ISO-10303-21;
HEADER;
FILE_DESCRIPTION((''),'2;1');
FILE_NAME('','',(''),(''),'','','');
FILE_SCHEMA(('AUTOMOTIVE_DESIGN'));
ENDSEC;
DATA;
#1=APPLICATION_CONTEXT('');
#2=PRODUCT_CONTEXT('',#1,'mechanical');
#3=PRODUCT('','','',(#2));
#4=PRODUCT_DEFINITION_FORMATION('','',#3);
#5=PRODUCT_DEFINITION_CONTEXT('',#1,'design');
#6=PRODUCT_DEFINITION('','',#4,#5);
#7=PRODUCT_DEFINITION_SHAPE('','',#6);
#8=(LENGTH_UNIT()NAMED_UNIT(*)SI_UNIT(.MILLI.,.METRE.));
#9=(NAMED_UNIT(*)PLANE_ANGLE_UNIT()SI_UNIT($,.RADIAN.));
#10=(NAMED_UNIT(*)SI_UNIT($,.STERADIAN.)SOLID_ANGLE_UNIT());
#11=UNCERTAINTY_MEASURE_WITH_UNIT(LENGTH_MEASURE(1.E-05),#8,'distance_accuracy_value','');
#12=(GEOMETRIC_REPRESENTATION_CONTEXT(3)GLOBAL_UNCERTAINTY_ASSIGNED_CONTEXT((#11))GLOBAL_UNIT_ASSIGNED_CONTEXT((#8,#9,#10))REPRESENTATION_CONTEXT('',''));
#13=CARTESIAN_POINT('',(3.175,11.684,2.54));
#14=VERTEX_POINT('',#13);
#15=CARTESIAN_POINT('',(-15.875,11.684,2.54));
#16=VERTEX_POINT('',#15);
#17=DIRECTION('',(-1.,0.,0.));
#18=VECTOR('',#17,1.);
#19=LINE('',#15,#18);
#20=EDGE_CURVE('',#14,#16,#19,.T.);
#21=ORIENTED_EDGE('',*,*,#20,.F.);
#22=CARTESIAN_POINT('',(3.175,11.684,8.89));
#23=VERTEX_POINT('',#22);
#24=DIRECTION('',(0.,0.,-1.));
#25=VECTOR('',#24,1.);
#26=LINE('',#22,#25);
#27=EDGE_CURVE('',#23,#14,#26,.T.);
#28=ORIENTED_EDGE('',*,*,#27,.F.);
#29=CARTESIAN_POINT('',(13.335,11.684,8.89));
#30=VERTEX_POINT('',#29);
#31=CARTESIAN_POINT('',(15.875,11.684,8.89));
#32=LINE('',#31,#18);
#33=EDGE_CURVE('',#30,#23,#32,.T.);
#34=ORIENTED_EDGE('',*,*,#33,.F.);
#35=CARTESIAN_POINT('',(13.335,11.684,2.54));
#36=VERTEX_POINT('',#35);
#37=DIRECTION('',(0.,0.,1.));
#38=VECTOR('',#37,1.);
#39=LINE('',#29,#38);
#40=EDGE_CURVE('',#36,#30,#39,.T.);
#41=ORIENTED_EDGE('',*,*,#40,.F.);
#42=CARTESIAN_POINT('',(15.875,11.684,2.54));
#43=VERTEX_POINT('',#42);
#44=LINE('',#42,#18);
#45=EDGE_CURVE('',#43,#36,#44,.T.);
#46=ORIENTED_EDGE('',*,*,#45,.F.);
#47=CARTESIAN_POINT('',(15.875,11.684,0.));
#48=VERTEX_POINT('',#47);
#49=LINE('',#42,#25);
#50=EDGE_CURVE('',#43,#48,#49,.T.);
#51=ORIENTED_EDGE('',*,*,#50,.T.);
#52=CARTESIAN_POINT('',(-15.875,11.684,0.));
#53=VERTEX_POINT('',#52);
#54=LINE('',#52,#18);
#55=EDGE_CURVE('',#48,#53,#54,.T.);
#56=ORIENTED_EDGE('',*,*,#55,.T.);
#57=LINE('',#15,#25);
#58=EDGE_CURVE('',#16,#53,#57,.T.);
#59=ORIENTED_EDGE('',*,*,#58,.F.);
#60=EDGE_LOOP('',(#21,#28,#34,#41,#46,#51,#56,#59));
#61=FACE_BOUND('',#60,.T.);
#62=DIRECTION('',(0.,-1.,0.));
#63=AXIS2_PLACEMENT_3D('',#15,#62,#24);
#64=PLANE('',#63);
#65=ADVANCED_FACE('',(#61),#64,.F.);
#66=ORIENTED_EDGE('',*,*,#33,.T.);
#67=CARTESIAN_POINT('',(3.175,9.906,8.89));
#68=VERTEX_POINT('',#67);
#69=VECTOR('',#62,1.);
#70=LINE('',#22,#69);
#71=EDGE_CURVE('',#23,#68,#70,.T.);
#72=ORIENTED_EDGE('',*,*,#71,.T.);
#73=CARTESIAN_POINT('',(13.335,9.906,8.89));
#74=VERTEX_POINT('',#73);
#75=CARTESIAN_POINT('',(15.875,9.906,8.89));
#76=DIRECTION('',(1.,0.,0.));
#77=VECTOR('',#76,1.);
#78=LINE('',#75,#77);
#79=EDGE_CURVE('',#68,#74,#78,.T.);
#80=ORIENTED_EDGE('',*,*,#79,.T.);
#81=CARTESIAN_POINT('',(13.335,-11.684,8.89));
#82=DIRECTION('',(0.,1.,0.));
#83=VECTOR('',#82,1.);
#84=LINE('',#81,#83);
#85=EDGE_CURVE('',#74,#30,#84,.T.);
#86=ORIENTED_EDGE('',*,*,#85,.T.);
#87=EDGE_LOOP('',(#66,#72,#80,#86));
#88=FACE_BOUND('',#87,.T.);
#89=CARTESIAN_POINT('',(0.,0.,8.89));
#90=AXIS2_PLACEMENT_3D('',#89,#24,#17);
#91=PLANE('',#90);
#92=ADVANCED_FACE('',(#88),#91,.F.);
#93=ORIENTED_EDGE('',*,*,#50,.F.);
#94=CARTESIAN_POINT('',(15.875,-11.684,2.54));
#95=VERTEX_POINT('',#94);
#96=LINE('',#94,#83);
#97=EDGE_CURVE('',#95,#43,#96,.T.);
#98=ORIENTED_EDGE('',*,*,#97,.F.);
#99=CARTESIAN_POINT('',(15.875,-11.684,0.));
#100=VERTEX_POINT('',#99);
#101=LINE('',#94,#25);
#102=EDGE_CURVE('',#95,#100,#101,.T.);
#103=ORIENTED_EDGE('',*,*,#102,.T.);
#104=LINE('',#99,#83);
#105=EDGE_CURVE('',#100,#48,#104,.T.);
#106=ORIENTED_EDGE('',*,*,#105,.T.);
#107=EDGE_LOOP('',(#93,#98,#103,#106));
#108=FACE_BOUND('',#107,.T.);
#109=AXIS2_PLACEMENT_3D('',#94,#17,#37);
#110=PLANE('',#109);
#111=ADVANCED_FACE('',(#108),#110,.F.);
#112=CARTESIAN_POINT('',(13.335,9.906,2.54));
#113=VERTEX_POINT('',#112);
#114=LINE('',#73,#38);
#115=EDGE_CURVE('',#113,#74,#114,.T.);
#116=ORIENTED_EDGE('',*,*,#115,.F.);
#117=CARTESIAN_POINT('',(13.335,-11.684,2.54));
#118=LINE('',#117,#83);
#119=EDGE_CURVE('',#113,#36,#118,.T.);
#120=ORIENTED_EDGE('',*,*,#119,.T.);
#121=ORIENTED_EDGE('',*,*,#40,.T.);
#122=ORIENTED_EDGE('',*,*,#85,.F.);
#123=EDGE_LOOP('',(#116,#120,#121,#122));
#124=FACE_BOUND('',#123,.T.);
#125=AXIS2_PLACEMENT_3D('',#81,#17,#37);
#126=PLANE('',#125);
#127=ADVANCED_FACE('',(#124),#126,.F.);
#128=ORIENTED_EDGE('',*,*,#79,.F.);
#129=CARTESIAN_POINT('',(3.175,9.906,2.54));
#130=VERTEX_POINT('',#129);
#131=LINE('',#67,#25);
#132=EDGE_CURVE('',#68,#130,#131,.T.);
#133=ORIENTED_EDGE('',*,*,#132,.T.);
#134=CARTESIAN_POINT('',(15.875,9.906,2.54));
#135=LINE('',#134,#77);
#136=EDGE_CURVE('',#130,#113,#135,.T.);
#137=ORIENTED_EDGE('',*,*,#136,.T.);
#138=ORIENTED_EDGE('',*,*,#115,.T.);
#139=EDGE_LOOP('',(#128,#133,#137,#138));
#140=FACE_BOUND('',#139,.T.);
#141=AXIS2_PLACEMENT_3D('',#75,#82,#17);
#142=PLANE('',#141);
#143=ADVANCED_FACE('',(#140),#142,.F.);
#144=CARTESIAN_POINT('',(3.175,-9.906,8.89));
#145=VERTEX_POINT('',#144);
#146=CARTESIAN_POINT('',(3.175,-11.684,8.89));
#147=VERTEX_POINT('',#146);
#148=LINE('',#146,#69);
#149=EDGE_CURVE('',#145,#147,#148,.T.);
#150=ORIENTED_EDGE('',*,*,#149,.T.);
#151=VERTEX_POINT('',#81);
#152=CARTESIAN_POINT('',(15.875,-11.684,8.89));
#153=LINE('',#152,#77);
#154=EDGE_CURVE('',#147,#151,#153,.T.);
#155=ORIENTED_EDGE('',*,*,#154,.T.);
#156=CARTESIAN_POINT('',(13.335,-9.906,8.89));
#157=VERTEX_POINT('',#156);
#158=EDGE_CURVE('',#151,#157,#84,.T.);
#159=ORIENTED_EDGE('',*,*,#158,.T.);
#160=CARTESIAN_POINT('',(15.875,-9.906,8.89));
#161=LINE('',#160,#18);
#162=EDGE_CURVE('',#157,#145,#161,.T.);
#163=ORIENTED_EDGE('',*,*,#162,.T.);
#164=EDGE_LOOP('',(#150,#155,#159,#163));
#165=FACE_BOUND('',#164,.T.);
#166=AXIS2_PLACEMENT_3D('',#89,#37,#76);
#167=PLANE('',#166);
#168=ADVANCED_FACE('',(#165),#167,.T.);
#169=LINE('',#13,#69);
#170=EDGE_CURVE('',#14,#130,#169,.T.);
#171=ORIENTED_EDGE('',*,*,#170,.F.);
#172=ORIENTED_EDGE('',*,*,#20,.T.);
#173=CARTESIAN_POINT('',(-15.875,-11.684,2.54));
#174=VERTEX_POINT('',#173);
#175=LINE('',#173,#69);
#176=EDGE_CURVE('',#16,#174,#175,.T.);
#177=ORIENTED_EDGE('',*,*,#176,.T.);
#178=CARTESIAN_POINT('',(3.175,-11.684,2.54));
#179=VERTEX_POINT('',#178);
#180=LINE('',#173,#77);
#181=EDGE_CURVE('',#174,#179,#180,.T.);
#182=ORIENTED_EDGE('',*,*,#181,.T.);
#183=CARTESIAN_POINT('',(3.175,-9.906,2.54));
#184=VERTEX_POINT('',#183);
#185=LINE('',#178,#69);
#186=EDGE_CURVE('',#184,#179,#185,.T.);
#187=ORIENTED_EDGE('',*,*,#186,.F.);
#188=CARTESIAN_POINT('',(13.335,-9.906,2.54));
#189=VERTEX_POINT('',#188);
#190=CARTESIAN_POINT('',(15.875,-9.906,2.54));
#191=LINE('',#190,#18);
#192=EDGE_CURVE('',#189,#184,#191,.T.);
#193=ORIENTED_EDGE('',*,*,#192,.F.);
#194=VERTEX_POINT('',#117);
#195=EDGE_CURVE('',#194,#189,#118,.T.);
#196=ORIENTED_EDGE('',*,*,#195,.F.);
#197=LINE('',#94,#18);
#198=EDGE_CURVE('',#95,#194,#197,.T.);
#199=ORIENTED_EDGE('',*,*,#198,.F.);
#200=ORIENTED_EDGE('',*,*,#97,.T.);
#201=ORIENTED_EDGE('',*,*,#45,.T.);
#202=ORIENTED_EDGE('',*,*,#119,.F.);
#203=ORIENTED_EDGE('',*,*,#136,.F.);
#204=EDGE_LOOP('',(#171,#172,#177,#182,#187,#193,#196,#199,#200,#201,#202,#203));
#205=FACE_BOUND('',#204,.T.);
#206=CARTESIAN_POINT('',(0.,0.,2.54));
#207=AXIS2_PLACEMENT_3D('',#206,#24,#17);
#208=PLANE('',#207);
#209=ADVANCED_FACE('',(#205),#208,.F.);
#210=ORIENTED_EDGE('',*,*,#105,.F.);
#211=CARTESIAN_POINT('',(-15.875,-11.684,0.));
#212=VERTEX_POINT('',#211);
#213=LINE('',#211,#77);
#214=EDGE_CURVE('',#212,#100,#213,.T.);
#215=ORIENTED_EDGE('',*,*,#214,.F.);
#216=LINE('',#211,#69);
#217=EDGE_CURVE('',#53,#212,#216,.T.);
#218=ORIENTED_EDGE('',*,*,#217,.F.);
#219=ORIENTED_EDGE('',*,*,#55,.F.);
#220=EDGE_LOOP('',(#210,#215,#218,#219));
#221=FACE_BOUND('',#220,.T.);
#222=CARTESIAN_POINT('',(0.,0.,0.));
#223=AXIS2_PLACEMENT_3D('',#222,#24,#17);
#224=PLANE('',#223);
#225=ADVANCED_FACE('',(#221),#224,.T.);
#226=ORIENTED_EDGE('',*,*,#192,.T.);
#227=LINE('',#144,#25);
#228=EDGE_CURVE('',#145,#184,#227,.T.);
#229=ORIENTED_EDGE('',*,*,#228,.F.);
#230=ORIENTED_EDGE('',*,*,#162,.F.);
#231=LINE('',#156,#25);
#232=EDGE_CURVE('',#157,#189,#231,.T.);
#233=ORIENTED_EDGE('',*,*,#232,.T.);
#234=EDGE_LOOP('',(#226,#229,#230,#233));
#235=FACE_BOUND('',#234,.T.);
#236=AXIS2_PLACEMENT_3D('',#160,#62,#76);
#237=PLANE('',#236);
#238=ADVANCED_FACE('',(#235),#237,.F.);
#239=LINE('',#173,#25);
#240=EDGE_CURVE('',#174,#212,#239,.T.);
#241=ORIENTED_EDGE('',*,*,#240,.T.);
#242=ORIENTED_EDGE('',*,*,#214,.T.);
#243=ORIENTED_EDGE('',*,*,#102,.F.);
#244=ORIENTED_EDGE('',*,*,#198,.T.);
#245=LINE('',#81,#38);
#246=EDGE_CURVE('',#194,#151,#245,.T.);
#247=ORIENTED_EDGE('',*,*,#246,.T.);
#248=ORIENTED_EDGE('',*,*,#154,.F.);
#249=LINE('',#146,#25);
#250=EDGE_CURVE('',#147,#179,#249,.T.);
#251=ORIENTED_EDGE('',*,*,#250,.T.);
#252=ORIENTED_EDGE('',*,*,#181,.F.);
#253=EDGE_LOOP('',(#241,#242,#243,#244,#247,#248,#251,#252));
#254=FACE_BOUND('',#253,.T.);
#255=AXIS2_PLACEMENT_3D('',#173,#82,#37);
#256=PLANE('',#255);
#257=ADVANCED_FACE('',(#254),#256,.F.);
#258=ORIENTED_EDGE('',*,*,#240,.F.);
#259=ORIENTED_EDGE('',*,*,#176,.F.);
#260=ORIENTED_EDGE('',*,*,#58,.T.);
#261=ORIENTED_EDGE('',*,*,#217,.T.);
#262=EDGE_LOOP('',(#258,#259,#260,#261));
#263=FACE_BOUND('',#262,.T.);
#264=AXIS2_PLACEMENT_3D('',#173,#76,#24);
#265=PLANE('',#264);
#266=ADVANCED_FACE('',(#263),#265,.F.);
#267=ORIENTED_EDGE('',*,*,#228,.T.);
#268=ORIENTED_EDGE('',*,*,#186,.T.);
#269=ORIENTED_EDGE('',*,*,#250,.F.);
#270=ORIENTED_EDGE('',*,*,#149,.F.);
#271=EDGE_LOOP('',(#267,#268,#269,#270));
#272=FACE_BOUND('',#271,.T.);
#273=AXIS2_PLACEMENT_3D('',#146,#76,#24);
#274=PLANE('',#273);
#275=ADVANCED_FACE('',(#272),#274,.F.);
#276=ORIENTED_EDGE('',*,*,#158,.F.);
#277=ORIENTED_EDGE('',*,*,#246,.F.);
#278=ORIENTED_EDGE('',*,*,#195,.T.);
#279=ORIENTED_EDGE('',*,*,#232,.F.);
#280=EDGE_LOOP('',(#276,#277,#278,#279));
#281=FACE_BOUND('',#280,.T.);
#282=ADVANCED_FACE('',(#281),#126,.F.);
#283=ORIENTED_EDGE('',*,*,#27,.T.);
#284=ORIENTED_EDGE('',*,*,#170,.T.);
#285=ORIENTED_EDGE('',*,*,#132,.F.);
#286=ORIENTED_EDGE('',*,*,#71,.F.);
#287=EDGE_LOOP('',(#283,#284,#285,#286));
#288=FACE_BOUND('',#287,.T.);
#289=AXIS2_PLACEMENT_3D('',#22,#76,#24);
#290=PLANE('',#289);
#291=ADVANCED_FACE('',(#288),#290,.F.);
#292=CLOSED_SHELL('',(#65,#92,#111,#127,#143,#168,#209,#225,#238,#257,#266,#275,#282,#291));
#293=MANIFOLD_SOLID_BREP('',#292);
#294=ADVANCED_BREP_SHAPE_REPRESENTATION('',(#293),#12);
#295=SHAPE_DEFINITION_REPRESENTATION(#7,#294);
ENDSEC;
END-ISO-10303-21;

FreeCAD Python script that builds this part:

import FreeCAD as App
import Part
import Sketcher
from FreeCAD import Vector
Q = App.Units.Quantity

doc = App.newDocument("Part")
body = doc.addObject("PartDesign::Body", "Body")

sketch1 = body.newObject("Sketcher::SketchObject", "Sketch")
sketch1.AttachmentSupport = (doc.getObject("XY_Plane"), [""])
sketch1.MapMode = "FlatFace"
sketch1.addGeometry([
    Part.LineSegment(Vector(-15.875, 11.684, 0), Vector(-15.875, -11.684, 0)),
    Part.LineSegment(Vector(-15.875, -11.684, 0), Vector(15.875, -11.684, 0)),
    Part.LineSegment(Vector(15.875, -11.684, 0), Vector(15.875, 11.684, 0)),
    Part.LineSegment(Vector(15.875, 11.684, 0), Vector(-15.875, 11.684, 0)),
], False)
sketch1.addConstraint([
    Sketcher.Constraint("Coincident", 0, 2, 1, 1),
    Sketcher.Constraint("Coincident", 1, 2, 2, 1),
    Sketcher.Constraint("Coincident", 2, 2, 3, 1),
    Sketcher.Constraint("Coincident", 3, 2, 0, 1),
    Sketcher.Constraint("Vertical", 0),
    Sketcher.Constraint("Horizontal", 1),
    Sketcher.Constraint("Vertical", 2),
    Sketcher.Constraint("Horizontal", 3),
    Sketcher.Constraint("Symmetric", 0, 2, 2, 2, -1, 1),
    Sketcher.Constraint("DistanceX", 1, 1, 1, 2, Q("1.25 in")),
    Sketcher.Constraint("DistanceY", 0, 2, 0, 1, Q("0.92 in")),
])
pad1 = body.newObject("PartDesign::Pad", "Pad")
pad1.Profile = sketch1
pad1.Length = Q("0.1 in")

sketch2 = body.newObject("Sketcher::SketchObject", "Sketch001")
sketch2.AttachmentSupport = (doc.getObject("XY_Plane"), [""])
sketch2.MapMode = "FlatFace"
sketch2.AttachmentOffset = App.Placement(Vector(0, 0, 0.1 * 25.4), App.Rotation())
sketch2.addGeometry([
    Part.LineSegment(Vector(3.175, 11.684, 0), Vector(3.175, 9.906, 0)),
    Part.LineSegment(Vector(3.175, 9.906, 0), Vector(15.875, 9.906, 0)),
    Part.LineSegment(Vector(15.875, 9.906, 0), Vector(15.875, 11.684, 0)),
    Part.LineSegment(Vector(15.875, 11.684, 0), Vector(3.175, 11.684, 0)),
    Part.LineSegment(Vector(3.175, -9.906, 0), Vector(3.175, -11.684, 0)),
    Part.LineSegment(Vector(3.175, -11.684, 0), Vector(15.875, -11.684, 0)),
    Part.LineSegment(Vector(15.875, -11.684, 0), Vector(15.875, -9.906, 0)),
    Part.LineSegment(Vector(15.875, -9.906, 0), Vector(3.175, -9.906, 0)),
], False)
sketch2.addConstraint([
    Sketcher.Constraint("Coincident", 0, 2, 1, 1),
    Sketcher.Constraint("Coincident", 1, 2, 2, 1),
    Sketcher.Constraint("Coincident", 2, 2, 3, 1),
    Sketcher.Constraint("Coincident", 3, 2, 0, 1),
    Sketcher.Constraint("Coincident", 4, 2, 5, 1),
    Sketcher.Constraint("Coincident", 5, 2, 6, 1),
    Sketcher.Constraint("Coincident", 6, 2, 7, 1),
    Sketcher.Constraint("Coincident", 7, 2, 4, 1),
    Sketcher.Constraint("Vertical", 0),
    Sketcher.Constraint("Horizontal", 1),
    Sketcher.Constraint("Vertical", 2),
    Sketcher.Constraint("Horizontal", 3),
    Sketcher.Constraint("Vertical", 4),
    Sketcher.Constraint("Horizontal", 5),
    Sketcher.Constraint("Vertical", 6),
    Sketcher.Constraint("Horizontal", 7),
    Sketcher.Constraint("Symmetric", 3, 2, 4, 2, -1),
    Sketcher.Constraint("Symmetric", 1, 2, 6, 2, -1),
    Sketcher.Constraint("DistanceX", 1, 1, 1, 2, Q("0.5 in")),
    Sketcher.Constraint("DistanceY", 0, 2, 0, 1, Q("0.07 in")),
    Sketcher.Constraint("DistanceY", -1, 1, 0, 2, Q("0.39 in")),
    Sketcher.Constraint("DistanceX", -1, 1, 0, 2, Q("0.125 in")),
])
pad2 = body.newObject("PartDesign::Pad", "Pad001")
pad2.Profile = sketch2
pad2.Length = Q("0.25 in")

sketch3 = body.newObject("Sketcher::SketchObject", "Sketch002")
sketch3.AttachmentSupport = (doc.getObject("XZ_Plane"), [""])
sketch3.MapMode = "FlatFace"
sketch3.AttachmentOffset = App.Placement(Vector(0, 0, -0.46 * 25.4), App.Rotation())
sketch3.addGeometry([
    Part.LineSegment(Vector(13.335, 2.54, 0), Vector(13.335, 8.89, 0)),
    Part.LineSegment(Vector(13.335, 8.89, 0), Vector(15.875, 8.89, 0)),
    Part.LineSegment(Vector(15.875, 8.89, 0), Vector(15.875, 2.54, 0)),
    Part.LineSegment(Vector(15.875, 2.54, 0), Vector(13.335, 2.54, 0)),
], False)
sketch3.addConstraint([
    Sketcher.Constraint("Coincident", 0, 2, 1, 1),
    Sketcher.Constraint("Coincident", 1, 2, 2, 1),
    Sketcher.Constraint("Coincident", 2, 2, 3, 1),
    Sketcher.Constraint("Coincident", 3, 2, 0, 1),
    Sketcher.Constraint("Vertical", 0),
    Sketcher.Constraint("Horizontal", 1),
    Sketcher.Constraint("Vertical", 2),
    Sketcher.Constraint("Horizontal", 3),
    Sketcher.Constraint("DistanceX", 1, 1, 1, 2, Q("0.1 in")),
    Sketcher.Constraint("DistanceY", 0, 1, 0, 2, Q("0.25 in")),
    Sketcher.Constraint("DistanceY", -1, 1, 2, 2, Q("0.1 in")),
    Sketcher.Constraint("DistanceX", -1, 1, 0, 2, Q("0.525 in")),
])
pocket1 = body.newObject("PartDesign::Pocket", "Pocket")
pocket1.Profile = sketch3
pocket1.Type = "ThroughAll"
pocket1.Reversed = True

doc.recompute()
